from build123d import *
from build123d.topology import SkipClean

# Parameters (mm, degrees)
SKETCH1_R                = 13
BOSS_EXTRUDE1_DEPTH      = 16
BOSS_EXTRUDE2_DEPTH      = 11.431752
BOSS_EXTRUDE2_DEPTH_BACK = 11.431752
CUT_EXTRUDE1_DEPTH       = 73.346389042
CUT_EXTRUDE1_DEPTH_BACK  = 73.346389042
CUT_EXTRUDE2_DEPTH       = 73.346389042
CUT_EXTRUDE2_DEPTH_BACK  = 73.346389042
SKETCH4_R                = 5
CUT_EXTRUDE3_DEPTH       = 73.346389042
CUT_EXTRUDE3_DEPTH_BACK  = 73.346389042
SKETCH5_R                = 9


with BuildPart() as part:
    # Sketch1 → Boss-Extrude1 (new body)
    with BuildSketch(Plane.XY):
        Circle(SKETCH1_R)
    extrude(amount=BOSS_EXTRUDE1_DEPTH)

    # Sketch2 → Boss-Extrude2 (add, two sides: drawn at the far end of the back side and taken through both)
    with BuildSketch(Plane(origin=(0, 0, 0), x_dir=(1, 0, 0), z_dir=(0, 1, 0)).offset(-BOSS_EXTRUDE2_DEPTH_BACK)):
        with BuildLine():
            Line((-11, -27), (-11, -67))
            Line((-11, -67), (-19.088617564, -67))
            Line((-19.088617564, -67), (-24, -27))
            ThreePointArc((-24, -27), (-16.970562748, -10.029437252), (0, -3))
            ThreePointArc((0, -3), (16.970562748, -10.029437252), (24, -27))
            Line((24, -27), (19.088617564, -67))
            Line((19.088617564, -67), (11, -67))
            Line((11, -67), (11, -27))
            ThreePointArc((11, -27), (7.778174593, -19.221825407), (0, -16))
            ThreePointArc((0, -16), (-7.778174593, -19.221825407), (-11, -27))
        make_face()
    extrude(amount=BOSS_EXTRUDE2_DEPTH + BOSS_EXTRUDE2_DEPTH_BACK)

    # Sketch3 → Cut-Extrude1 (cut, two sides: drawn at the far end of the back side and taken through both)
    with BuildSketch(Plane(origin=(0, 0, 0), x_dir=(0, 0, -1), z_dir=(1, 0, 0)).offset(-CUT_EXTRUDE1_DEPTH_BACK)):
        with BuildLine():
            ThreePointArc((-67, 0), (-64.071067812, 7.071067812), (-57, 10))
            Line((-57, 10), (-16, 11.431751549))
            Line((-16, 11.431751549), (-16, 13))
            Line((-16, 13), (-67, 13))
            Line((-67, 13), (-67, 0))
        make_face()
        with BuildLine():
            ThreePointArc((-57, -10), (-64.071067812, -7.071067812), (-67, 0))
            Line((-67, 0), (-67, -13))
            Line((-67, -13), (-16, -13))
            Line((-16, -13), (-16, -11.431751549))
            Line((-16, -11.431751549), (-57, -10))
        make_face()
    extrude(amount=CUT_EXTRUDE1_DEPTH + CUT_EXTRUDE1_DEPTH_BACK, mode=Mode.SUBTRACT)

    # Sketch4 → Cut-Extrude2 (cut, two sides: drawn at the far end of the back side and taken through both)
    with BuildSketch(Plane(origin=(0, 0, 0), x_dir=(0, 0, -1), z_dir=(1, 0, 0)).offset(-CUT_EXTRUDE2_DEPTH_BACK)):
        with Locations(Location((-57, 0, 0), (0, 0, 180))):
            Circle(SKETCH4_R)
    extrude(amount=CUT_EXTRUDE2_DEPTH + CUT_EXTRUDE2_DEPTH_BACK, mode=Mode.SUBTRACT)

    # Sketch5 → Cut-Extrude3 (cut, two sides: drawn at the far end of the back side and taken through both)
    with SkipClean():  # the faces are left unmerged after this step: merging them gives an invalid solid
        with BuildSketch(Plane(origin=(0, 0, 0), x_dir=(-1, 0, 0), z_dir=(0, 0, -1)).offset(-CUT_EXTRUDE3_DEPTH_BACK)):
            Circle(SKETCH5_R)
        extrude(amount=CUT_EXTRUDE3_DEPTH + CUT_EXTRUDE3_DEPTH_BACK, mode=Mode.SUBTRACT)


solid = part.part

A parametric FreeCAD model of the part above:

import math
import FreeCAD as App
import Part
import Sketcher
from FreeCAD import Vector
Q = App.Units.Quantity

doc = App.newDocument("Part")
params = doc.addObject("Spreadsheet::Sheet", "Params")
for row, (alias, value) in enumerate([
    ("sketch1_diameter", "26 mm"),
    ("pad1_length", "16 mm"),
    ("sketch2_radius", "11 mm"),
    ("sketch2_radius2", "24 mm"),
    ("sketch2_height", "40 mm"),
    ("pad2_length", "11.431752 mm"),
    ("pad2_length2", "11.431752 mm"),
    ("sketch3_radius", "10 mm"),
    ("sketch3_width", "13 mm"),
    ("sketch3_height", "51 mm"),
    ("sketch4_diameter", "10 mm"),
    ("sketch5_diameter", "18 mm"),
], start=1):
    params.set(f"A{row}", alias)
    params.set(f"B{row}", "=" + value)
    params.setAlias(f"B{row}", alias)

body = doc.addObject("PartDesign::Body", "Body")

# Sketch on XY plane
sketch1 = doc.addObject("Sketcher::SketchObject", "Sketch")
body.addObject(sketch1)
sketch1.AttachmentSupport = (doc.XY_Plane, [""])
sketch1.MapMode = "FlatFace"
sketch1.addGeometry(Part.Circle(Vector(0, 0, 0), Vector(0, 0, 1), 13), False)
sketch1.addConstraint(Sketcher.Constraint("Coincident", 0, 3, -1, 1))
sketch1.addConstraint(Sketcher.Constraint("Diameter", 0, 26.0))
sketch1.setExpression("Constraints[1]", "Params.sketch1_diameter")
pad1 = doc.addObject("PartDesign::Pad", "Pad")
body.addObject(pad1)
pad1.Profile = sketch1
pad1.setExpression("Length", "Params.pad1_length")

# Sketch on XZ plane
sketch2 = doc.addObject("Sketcher::SketchObject", "Sketch001")
body.addObject(sketch2)
sketch2.AttachmentSupport = (doc.XZ_Plane, [""])
sketch2.MapMode = "FlatFace"
sketch2.addGeometry(Part.LineSegment(Vector(-11, 67, 0), Vector(-11, 27, 0)), False)
sketch2.addGeometry(Part.ArcOfCircle(Part.Circle(Vector(0, 27, 0), Vector(0, 0, 1), 11), math.radians(180), math.radians(270)), False)
sketch2.addGeometry(Part.ArcOfCircle(Part.Circle(Vector(0, 27, 0), Vector(0, 0, 1), 11), math.radians(-90), math.radians(0)), False)
sketch2.addGeometry(Part.LineSegment(Vector(11, 27, 0), Vector(11, 67, 0)), False)
sketch2.addGeometry(Part.LineSegment(Vector(11, 67, 0), Vector(19, 67, 0)), False)
sketch2.addGeometry(Part.LineSegment(Vector(19, 67, 0), Vector(24, 27, 0)), False)
sketch2.addGeometry(Part.ArcOfCircle(Part.Circle(Vector(0, 27, 0), Vector(0, 0, 1), 24), math.radians(-90), math.radians(0)), False)
sketch2.addGeometry(Part.ArcOfCircle(Part.Circle(Vector(0, 27, 0), Vector(0, 0, 1), 24), math.radians(-180), math.radians(-90)), False)
sketch2.addGeometry(Part.LineSegment(Vector(-24, 27, 0), Vector(-19, 67, 0)), False)
sketch2.addGeometry(Part.LineSegment(Vector(-19, 67, 0), Vector(-11, 67, 0)), False)
sketch2.addConstraint(Sketcher.Constraint("Tangent", 0, 2, 1, 1))
sketch2.addConstraint(Sketcher.Constraint("Tangent", 1, 2, 2, 1))
sketch2.addConstraint(Sketcher.Constraint("Tangent", 2, 2, 3, 1))
sketch2.addConstraint(Sketcher.Constraint("Coincident", 3, 2, 4, 1))
sketch2.addConstraint(Sketcher.Constraint("Coincident", 4, 2, 5, 1))
sketch2.addConstraint(Sketcher.Constraint("Coincident", 5, 2, 6, 2))
sketch2.addConstraint(Sketcher.Constraint("Tangent", 6, 1, 7, 2))
sketch2.addConstraint(Sketcher.Constraint("Coincident", 7, 1, 8, 1))
sketch2.addConstraint(Sketcher.Constraint("Coincident", 8, 2, 9, 1))
sketch2.addConstraint(Sketcher.Constraint("Coincident", 9, 2, 0, 1))
sketch2.addConstraint(Sketcher.Constraint("Vertical", 0))
sketch2.addConstraint(Sketcher.Constraint("Vertical", 3))
sketch2.addConstraint(Sketcher.Constraint("Horizontal", 4))
sketch2.addConstraint(Sketcher.Constraint("Horizontal", 9))
sketch2.addConstraint(Sketcher.Constraint("Coincident", 6, 3, 1, 3))
sketch2.addConstraint(Sketcher.Constraint("Equal", 1, 2))
sketch2.addConstraint(Sketcher.Constraint("Equal", 6, 7))
sketch2.addConstraint(Sketcher.Constraint("Symmetric", 5, 2, 7, 1, -2))
sketch2.addConstraint(Sketcher.Constraint("Symmetric", 4, 2, 8, 2, -2))
sketch2.addConstraint(Sketcher.Constraint("PointOnObject", 1, 2, -2))
sketch2.addConstraint(Sketcher.Constraint("PointOnObject", 6, 1, -2))
sketch2.addConstraint(Sketcher.Constraint("Horizontal", 2, 2, 5, 2))
sketch2.addConstraint(Sketcher.Constraint("Radius", 1, 11.0))
sketch2.addConstraint(Sketcher.Constraint("Radius", 6, 24.0))
sketch2.addConstraint(Sketcher.Constraint("DistanceY", 0, 2, 0, 1, 40.0))
sketch2.addConstraint(Sketcher.Constraint("Angle", 5, Q("-83 deg")))
sketch2.addConstraint(Sketcher.Constraint("DistanceY", -1, 1, 1, 3, 27.0))
sketch2.setExpression("Constraints[22]", "Params.sketch2_radius")
sketch2.setExpression("Constraints[23]", "Params.sketch2_radius2")
sketch2.setExpression("Constraints[24]", "Params.sketch2_height")
pad2 = doc.addObject("PartDesign::Pad", "Pad001")
body.addObject(pad2)
pad2.Profile = sketch2
pad2.Type = "TwoLengths"
pad2.setExpression("Length", "Params.pad2_length")
pad2.setExpression("Length2", "Params.pad2_length2")
pad2.Reversed = True

# Sketch on YZ plane
sketch3 = doc.addObject("Sketcher::SketchObject", "Sketch002")
body.addObject(sketch3)
sketch3.AttachmentSupport = (doc.YZ_Plane, [""])
sketch3.MapMode = "FlatFace"
sketch3.addGeometry(Part.ArcOfCircle(Part.Circle(Vector(0, 57, 0), Vector(0, 0, 1), 10), math.radians(0), math.radians(90)), False)
sketch3.addGeometry(Part.LineSegment(Vector(10, 57, 0), Vector(11.4, 16, 0)), False)
sketch3.addGeometry(Part.LineSegment(Vector(11.4, 16, 0), Vector(13, 16, 0)), False)
sketch3.addGeometry(Part.LineSegment(Vector(13, 16, 0), Vector(13, 67, 0)), False)
sketch3.addGeometry(Part.LineSegment(Vector(13, 67, 0), Vector(0, 67, 0)), False)
sketch3.addGeometry(Part.ArcOfCircle(Part.Circle(Vector(0, 57, 0), Vector(0, 0, 1), 10), math.radians(90), math.radians(180)), False)
sketch3.addGeometry(Part.LineSegment(Vector(0, 67, 0), Vector(-13, 67, 0)), False)
sketch3.addGeometry(Part.LineSegment(Vector(-13, 67, 0), Vector(-13, 16, 0)), False)
sketch3.addGeometry(Part.LineSegment(Vector(-13, 16, 0), Vector(-11.4, 16, 0)), False)
sketch3.addGeometry(Part.LineSegment(Vector(-11.4, 16, 0), Vector(-10, 57, 0)), False)
sketch3.addConstraint(Sketcher.Constraint("Coincident", 0, 1, 1, 1))
sketch3.addConstraint(Sketcher.Constraint("Coincident", 1, 2, 2, 1))
sketch3.addConstraint(Sketcher.Constraint("Coincident", 2, 2, 3, 1))
sketch3.addConstraint(Sketcher.Constraint("Coincident", 3, 2, 4, 1))
sketch3.addConstraint(Sketcher.Constraint("Tangent", 4, 2, 0, 2))
sketch3.addConstraint(Sketcher.Constraint("Tangent", 5, 1, 6, 1))
sketch3.addConstraint(Sketcher.Constraint("Coincident", 6, 2, 7, 1))
sketch3.addConstraint(Sketcher.Constraint("Coincident", 7, 2, 8, 1))
sketch3.addConstraint(Sketcher.Constraint("Coincident", 8, 2, 9, 1))
sketch3.addConstraint(Sketcher.Constraint("Coincident", 9, 2, 5, 2))
sketch3.addConstraint(Sketcher.Constraint("Horizontal", 2))
sketch3.addConstraint(Sketcher.Constraint("Vertical", 3))
sketch3.addConstraint(Sketcher.Constraint("Horizontal", 4))
sketch3.addConstraint(Sketcher.Constraint("Horizontal", 6))
sketch3.addConstraint(Sketcher.Constraint("Vertical", 7))
sketch3.addConstraint(Sketcher.Constraint("Horizontal", 8))
sketch3.addConstraint(Sketcher.Constraint("Coincident", 5, 3, 0, 3))
sketch3.addConstraint(Sketcher.Constraint("Equal", 0, 5))
sketch3.addConstraint(Sketcher.Constraint("Symmetric", 2, 2, 7, 2, -2))
sketch3.addConstraint(Sketcher.Constraint("Symmetric", 0, 1, 9, 2, -2))
sketch3.addConstraint(Sketcher.Constraint("Horizontal", 5, 3, 0, 1))
sketch3.addConstraint(Sketcher.Constraint("Equal", 2, 8))
sketch3.addConstraint(Sketcher.Constraint("Radius", 0, 10.0))
sketch3.addConstraint(Sketcher.Constraint("DistanceX", 4, 2, 4, 1, 13.0))
sketch3.addConstraint(Sketcher.Constraint("DistanceY", 3, 1, 3, 2, 51.0))
sketch3.addConstraint(Sketcher.Constraint("Angle", 1, Q("-88 deg")))
sketch3.addConstraint(Sketcher.Constraint("DistanceY", -1, 1, 0, 3, 57.0))
sketch3.setExpression("Constraints[22]", "Params.sketch3_radius")
sketch3.setExpression("Constraints[23]", "Params.sketch3_width")
sketch3.setExpression("Constraints[24]", "Params.sketch3_height")
pocket1 = doc.addObject("PartDesign::Pocket", "Pocket")
body.addObject(pocket1)
pocket1.Profile = sketch3
pocket1.Type = "ThroughAll"
pocket1.Midplane = True

# Sketch on YZ plane
sketch4 = doc.addObject("Sketcher::SketchObject", "Sketch003")
body.addObject(sketch4)
sketch4.AttachmentSupport = (doc.YZ_Plane, [""])
sketch4.MapMode = "FlatFace"
sketch4.addGeometry(Part.Circle(Vector(0, 57, 0), Vector(0, 0, 1), 5), False)
sketch4.addConstraint(Sketcher.Constraint("PointOnObject", 0, 3, -2))
sketch4.addConstraint(Sketcher.Constraint("Diameter", 0, 10.0))
sketch4.addConstraint(Sketcher.Constraint("DistanceY", -1, 1, 0, 3, 57.0))
sketch4.setExpression("Constraints[1]", "Params.sketch4_diameter")
pocket2 = doc.addObject("PartDesign::Pocket", "Pocket001")
body.addObject(pocket2)
pocket2.Profile = sketch4
pocket2.Type = "ThroughAll"
pocket2.Midplane = True

# Sketch on XY plane
sketch5 = doc.addObject("Sketcher::SketchObject", "Sketch004")
body.addObject(sketch5)
sketch5.AttachmentSupport = (doc.XY_Plane, [""])
sketch5.MapMode = "FlatFace"
sketch5.addGeometry(Part.Circle(Vector(0, 0, 0), Vector(0, 0, 1), 9), False)
sketch5.addConstraint(Sketcher.Constraint("Coincident", 0, 3, -1, 1))
sketch5.addConstraint(Sketcher.Constraint("Diameter", 0, 18.0))
sketch5.setExpression("Constraints[1]", "Params.sketch5_diameter")
pocket3 = doc.addObject("PartDesign::Pocket", "Pocket002")
body.addObject(pocket3)
pocket3.Profile = sketch5
pocket3.Type = "ThroughAll"
pocket3.Midplane = True

doc.recompute()
